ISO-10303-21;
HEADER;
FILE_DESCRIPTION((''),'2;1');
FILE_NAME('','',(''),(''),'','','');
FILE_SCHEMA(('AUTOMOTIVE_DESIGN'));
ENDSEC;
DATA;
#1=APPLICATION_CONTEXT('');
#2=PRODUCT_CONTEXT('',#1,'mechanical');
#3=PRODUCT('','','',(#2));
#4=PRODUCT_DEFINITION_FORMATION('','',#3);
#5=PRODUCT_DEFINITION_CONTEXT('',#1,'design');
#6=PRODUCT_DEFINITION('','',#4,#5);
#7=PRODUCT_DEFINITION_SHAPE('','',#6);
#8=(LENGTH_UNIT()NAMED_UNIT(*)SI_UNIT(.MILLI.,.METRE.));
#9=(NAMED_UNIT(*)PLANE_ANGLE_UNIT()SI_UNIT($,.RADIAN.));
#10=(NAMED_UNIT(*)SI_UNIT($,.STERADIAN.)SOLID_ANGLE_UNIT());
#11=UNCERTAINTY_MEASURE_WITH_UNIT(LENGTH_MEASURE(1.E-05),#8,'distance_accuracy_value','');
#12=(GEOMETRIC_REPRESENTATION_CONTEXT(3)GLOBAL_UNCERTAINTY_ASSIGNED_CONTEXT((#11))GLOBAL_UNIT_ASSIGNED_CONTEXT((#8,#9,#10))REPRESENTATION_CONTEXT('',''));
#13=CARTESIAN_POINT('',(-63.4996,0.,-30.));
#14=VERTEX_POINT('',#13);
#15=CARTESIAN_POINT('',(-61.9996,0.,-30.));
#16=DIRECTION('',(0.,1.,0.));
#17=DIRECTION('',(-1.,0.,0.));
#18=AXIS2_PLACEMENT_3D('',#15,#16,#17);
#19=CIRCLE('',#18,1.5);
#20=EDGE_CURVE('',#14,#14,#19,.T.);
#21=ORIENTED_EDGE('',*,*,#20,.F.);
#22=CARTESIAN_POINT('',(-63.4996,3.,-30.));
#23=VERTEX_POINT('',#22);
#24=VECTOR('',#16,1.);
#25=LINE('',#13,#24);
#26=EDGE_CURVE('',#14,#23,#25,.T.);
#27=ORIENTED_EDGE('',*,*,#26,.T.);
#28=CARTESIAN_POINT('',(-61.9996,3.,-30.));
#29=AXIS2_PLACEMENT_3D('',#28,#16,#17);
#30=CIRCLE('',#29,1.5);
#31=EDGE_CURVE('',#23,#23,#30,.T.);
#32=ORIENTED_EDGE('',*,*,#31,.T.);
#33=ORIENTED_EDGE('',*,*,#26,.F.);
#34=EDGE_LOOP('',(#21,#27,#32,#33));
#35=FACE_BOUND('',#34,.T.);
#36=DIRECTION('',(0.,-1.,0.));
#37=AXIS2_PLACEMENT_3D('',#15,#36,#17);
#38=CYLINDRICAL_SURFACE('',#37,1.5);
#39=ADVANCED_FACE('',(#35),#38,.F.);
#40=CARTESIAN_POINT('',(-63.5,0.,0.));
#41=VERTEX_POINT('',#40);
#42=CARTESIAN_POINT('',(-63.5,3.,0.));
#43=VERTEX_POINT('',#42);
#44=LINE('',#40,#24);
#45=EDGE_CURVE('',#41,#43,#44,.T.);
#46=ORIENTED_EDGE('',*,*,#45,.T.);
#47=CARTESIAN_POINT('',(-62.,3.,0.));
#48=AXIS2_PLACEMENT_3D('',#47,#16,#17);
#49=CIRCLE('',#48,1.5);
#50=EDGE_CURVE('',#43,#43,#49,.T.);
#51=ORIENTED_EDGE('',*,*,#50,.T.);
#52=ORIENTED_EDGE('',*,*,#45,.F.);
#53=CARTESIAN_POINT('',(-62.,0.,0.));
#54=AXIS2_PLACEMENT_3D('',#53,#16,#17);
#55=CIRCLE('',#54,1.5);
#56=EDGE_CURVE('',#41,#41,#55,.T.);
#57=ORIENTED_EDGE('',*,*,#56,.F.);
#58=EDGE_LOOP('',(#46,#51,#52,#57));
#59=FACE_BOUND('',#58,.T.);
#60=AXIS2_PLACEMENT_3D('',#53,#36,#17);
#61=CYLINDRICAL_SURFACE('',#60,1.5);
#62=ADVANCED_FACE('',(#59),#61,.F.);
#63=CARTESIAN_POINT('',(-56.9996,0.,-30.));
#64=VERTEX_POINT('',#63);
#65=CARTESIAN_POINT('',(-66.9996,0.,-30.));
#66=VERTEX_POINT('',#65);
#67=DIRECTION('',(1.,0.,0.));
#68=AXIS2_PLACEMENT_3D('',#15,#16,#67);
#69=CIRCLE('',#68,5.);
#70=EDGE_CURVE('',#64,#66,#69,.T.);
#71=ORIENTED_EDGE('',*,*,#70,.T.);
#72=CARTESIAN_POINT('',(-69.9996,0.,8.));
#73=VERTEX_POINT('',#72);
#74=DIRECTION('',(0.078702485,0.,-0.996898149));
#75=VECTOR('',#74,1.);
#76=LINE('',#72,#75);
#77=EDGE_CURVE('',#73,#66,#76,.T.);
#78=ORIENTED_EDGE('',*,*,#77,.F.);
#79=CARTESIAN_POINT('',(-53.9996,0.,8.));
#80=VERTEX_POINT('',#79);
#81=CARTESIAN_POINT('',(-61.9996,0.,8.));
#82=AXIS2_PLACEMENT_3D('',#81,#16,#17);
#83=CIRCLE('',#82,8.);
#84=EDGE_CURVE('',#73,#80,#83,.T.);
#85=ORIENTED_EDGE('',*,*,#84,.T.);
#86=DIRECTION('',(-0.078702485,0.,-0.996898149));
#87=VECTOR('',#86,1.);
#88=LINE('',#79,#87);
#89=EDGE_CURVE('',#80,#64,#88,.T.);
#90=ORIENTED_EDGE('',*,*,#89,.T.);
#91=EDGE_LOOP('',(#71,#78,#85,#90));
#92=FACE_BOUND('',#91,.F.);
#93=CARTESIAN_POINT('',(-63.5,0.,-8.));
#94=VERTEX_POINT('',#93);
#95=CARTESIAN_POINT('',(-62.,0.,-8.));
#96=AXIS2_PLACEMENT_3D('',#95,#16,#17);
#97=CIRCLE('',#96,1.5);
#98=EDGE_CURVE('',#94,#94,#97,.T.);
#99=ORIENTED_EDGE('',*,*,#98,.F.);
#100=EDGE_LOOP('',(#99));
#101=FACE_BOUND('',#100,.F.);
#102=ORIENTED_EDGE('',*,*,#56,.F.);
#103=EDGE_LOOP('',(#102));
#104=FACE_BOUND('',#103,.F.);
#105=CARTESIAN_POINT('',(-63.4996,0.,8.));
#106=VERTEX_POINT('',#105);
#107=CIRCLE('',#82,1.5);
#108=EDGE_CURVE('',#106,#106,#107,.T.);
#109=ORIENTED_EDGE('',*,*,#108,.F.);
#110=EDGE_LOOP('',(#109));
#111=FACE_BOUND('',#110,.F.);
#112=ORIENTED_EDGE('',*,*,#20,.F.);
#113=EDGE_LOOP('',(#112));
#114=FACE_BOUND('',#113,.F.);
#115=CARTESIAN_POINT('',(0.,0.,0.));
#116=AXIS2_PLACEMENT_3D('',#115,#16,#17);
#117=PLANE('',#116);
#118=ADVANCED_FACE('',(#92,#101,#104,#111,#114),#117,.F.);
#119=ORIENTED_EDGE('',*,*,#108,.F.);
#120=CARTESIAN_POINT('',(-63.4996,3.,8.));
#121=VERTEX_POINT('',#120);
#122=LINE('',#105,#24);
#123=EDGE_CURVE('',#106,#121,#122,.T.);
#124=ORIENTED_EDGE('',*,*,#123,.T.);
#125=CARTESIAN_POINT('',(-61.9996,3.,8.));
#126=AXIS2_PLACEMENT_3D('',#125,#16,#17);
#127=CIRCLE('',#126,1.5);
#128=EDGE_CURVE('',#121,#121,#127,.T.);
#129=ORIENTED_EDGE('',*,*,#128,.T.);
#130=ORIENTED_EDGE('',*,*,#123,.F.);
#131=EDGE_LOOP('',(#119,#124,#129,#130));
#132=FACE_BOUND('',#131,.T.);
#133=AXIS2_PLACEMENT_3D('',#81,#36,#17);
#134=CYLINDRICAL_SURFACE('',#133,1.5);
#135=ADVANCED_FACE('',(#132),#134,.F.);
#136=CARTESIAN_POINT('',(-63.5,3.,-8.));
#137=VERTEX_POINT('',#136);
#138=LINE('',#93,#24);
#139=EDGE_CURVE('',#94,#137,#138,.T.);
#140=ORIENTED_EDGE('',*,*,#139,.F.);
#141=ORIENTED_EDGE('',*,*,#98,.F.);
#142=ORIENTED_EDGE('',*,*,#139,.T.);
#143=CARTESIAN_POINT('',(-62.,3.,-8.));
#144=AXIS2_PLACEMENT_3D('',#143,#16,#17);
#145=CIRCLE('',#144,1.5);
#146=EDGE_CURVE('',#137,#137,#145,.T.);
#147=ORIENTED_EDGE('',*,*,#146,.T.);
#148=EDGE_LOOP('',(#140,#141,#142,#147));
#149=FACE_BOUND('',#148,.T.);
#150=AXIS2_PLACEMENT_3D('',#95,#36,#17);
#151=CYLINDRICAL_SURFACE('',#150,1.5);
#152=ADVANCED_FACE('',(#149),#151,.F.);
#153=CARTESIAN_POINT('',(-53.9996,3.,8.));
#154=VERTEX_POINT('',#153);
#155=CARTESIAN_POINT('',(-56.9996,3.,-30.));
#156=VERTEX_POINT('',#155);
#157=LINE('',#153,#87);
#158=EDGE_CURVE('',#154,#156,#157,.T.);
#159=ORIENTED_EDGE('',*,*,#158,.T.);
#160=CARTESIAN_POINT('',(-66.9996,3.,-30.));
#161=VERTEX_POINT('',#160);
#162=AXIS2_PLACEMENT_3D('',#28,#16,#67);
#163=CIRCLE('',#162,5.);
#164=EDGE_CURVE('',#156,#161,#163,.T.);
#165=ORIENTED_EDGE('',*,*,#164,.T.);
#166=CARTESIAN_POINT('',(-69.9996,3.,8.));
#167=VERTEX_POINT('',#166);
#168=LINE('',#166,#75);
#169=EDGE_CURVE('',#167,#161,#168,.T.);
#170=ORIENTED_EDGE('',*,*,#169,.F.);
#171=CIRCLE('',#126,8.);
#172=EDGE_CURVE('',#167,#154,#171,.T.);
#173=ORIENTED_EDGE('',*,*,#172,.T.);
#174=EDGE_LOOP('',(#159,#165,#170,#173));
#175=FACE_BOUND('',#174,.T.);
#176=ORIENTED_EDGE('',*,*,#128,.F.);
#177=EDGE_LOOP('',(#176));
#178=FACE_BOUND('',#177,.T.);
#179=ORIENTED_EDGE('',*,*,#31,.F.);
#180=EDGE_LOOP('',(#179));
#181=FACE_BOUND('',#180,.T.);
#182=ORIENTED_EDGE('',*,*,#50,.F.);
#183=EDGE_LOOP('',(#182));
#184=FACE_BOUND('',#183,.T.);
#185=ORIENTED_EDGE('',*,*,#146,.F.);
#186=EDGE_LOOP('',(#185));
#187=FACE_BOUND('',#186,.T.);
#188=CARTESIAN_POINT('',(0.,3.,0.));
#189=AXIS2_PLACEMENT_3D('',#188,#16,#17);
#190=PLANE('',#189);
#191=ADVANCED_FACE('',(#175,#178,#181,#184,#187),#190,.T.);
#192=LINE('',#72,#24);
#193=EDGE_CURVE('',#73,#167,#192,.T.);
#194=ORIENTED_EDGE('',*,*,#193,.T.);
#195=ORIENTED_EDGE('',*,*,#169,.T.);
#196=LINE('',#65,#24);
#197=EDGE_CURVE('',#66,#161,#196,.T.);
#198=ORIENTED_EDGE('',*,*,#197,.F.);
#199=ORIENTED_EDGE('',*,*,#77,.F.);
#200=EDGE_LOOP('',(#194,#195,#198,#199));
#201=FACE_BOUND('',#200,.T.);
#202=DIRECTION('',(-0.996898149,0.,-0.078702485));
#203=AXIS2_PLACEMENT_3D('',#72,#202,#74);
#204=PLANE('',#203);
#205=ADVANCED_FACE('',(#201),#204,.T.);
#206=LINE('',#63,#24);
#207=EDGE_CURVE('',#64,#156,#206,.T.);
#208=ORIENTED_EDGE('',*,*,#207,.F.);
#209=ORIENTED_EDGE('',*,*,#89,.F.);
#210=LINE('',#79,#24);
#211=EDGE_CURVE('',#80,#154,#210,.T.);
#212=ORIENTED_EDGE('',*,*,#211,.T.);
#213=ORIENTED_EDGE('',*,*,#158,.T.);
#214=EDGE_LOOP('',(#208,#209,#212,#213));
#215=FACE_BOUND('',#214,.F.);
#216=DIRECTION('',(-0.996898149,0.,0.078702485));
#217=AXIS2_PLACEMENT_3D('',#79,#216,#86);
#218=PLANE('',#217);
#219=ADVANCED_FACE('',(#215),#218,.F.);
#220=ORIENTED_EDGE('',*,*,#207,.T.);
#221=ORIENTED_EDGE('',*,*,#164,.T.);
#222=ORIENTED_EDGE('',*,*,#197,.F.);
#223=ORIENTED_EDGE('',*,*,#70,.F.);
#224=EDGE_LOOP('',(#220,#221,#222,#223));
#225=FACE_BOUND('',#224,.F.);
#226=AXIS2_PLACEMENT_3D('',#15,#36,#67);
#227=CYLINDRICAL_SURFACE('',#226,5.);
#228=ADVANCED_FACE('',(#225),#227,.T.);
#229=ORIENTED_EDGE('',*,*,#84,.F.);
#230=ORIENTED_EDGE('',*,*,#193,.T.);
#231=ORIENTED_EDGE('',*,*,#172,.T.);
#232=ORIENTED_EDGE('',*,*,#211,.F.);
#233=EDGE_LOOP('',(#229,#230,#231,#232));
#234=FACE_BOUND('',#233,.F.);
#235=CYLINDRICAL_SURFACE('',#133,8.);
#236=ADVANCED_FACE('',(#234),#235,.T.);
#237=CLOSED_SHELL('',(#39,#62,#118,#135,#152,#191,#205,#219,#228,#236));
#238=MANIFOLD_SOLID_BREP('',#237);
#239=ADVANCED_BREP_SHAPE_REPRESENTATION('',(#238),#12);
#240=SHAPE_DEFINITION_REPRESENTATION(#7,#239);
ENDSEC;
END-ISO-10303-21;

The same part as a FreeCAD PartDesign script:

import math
import FreeCAD as App
import Part
import Sketcher
from FreeCAD import Vector
Q = App.Units.Quantity

doc = App.newDocument("Part")
body = doc.addObject("PartDesign::Body", "Body")

sketch1 = body.newObject("Sketcher::SketchObject", "Sketch")
sketch1.AttachmentSupport = (doc.getObject("XZ_Plane"), [""])
sketch1.MapMode = "FlatFace"
sketch1.addGeometry([
    Part.LineSegment(Vector(-54, 8, 0), Vector(-57, -30, 0)),
    Part.ArcOfCircle(Part.Circle(Vector(-62, -30, 0), Vector(0, 0, 1), 5), math.radians(180), math.radians(360)),
    Part.LineSegment(Vector(-67, -30, 0), Vector(-70, 8, 0)),
    Part.ArcOfCircle(Part.Circle(Vector(-62, 8, 0), Vector(0, 0, 1), 8), math.radians(0), math.radians(180)),
    Part.Circle(Vector(-62, -30, 0), Vector(0, 0, 1), 1.5),
    Part.Circle(Vector(-62, -8, 0), Vector(0, 0, 1), 1.5),
    Part.Circle(Vector(-62, 0, 0), Vector(0, 0, 1), 1.5),
    Part.Circle(Vector(-62, 8, 0), Vector(0, 0, 1), 1.5),
], False)
sketch1.addConstraint([
    Sketcher.Constraint("Coincident", 0, 2, 1, 2),
    Sketcher.Constraint("Coincident", 1, 1, 2, 1),
    Sketcher.Constraint("Coincident", 2, 2, 3, 2),
    Sketcher.Constraint("Coincident", 3, 1, 0, 1),
    Sketcher.Constraint("Coincident", 4, 3, 1, 3),
    Sketcher.Constraint("Coincident", 7, 3, 3, 3),
    Sketcher.Constraint("Equal", 4, 5),
    Sketcher.Constraint("Equal", 5, 6),
    Sketcher.Constraint("Equal", 6, 7),
    Sketcher.Constraint("Symmetric", 3, 3, 5, 3, -1),
    Sketcher.Constraint("PointOnObject", 6, 3, -1),
    Sketcher.Constraint("Horizontal", 4, 3, 0, 2),
    Sketcher.Constraint("Horizontal", 0, 2, 1, 1),
    Sketcher.Constraint("Horizontal", 7, 3, 2, 2),
    Sketcher.Constraint("Horizontal", 2, 2, 3, 1),
    Sketcher.Constraint("Vertical", 1, 3, 3, 3),
    Sketcher.Constraint("Vertical", 5, 3, 6, 3),
    Sketcher.Constraint("Diameter", 4, Q("3 mm")),
    Sketcher.Constraint("Radius", 1, Q("5 mm")),
    Sketcher.Constraint("Radius", 3, Q("8 mm")),
    Sketcher.Constraint("DistanceY", 1, 3, -1, 1, Q("30 mm")),
    Sketcher.Constraint("DistanceY", -1, 1, 3, 3, Q("8 mm")),
    Sketcher.Constraint("DistanceX", 5, 3, -1, 1, Q("62 mm")),
])
pad1 = body.newObject("PartDesign::Pad", "Pad")
pad1.Profile = sketch1
pad1.Length = 3
pad1.Reversed = True

doc.recompute()
